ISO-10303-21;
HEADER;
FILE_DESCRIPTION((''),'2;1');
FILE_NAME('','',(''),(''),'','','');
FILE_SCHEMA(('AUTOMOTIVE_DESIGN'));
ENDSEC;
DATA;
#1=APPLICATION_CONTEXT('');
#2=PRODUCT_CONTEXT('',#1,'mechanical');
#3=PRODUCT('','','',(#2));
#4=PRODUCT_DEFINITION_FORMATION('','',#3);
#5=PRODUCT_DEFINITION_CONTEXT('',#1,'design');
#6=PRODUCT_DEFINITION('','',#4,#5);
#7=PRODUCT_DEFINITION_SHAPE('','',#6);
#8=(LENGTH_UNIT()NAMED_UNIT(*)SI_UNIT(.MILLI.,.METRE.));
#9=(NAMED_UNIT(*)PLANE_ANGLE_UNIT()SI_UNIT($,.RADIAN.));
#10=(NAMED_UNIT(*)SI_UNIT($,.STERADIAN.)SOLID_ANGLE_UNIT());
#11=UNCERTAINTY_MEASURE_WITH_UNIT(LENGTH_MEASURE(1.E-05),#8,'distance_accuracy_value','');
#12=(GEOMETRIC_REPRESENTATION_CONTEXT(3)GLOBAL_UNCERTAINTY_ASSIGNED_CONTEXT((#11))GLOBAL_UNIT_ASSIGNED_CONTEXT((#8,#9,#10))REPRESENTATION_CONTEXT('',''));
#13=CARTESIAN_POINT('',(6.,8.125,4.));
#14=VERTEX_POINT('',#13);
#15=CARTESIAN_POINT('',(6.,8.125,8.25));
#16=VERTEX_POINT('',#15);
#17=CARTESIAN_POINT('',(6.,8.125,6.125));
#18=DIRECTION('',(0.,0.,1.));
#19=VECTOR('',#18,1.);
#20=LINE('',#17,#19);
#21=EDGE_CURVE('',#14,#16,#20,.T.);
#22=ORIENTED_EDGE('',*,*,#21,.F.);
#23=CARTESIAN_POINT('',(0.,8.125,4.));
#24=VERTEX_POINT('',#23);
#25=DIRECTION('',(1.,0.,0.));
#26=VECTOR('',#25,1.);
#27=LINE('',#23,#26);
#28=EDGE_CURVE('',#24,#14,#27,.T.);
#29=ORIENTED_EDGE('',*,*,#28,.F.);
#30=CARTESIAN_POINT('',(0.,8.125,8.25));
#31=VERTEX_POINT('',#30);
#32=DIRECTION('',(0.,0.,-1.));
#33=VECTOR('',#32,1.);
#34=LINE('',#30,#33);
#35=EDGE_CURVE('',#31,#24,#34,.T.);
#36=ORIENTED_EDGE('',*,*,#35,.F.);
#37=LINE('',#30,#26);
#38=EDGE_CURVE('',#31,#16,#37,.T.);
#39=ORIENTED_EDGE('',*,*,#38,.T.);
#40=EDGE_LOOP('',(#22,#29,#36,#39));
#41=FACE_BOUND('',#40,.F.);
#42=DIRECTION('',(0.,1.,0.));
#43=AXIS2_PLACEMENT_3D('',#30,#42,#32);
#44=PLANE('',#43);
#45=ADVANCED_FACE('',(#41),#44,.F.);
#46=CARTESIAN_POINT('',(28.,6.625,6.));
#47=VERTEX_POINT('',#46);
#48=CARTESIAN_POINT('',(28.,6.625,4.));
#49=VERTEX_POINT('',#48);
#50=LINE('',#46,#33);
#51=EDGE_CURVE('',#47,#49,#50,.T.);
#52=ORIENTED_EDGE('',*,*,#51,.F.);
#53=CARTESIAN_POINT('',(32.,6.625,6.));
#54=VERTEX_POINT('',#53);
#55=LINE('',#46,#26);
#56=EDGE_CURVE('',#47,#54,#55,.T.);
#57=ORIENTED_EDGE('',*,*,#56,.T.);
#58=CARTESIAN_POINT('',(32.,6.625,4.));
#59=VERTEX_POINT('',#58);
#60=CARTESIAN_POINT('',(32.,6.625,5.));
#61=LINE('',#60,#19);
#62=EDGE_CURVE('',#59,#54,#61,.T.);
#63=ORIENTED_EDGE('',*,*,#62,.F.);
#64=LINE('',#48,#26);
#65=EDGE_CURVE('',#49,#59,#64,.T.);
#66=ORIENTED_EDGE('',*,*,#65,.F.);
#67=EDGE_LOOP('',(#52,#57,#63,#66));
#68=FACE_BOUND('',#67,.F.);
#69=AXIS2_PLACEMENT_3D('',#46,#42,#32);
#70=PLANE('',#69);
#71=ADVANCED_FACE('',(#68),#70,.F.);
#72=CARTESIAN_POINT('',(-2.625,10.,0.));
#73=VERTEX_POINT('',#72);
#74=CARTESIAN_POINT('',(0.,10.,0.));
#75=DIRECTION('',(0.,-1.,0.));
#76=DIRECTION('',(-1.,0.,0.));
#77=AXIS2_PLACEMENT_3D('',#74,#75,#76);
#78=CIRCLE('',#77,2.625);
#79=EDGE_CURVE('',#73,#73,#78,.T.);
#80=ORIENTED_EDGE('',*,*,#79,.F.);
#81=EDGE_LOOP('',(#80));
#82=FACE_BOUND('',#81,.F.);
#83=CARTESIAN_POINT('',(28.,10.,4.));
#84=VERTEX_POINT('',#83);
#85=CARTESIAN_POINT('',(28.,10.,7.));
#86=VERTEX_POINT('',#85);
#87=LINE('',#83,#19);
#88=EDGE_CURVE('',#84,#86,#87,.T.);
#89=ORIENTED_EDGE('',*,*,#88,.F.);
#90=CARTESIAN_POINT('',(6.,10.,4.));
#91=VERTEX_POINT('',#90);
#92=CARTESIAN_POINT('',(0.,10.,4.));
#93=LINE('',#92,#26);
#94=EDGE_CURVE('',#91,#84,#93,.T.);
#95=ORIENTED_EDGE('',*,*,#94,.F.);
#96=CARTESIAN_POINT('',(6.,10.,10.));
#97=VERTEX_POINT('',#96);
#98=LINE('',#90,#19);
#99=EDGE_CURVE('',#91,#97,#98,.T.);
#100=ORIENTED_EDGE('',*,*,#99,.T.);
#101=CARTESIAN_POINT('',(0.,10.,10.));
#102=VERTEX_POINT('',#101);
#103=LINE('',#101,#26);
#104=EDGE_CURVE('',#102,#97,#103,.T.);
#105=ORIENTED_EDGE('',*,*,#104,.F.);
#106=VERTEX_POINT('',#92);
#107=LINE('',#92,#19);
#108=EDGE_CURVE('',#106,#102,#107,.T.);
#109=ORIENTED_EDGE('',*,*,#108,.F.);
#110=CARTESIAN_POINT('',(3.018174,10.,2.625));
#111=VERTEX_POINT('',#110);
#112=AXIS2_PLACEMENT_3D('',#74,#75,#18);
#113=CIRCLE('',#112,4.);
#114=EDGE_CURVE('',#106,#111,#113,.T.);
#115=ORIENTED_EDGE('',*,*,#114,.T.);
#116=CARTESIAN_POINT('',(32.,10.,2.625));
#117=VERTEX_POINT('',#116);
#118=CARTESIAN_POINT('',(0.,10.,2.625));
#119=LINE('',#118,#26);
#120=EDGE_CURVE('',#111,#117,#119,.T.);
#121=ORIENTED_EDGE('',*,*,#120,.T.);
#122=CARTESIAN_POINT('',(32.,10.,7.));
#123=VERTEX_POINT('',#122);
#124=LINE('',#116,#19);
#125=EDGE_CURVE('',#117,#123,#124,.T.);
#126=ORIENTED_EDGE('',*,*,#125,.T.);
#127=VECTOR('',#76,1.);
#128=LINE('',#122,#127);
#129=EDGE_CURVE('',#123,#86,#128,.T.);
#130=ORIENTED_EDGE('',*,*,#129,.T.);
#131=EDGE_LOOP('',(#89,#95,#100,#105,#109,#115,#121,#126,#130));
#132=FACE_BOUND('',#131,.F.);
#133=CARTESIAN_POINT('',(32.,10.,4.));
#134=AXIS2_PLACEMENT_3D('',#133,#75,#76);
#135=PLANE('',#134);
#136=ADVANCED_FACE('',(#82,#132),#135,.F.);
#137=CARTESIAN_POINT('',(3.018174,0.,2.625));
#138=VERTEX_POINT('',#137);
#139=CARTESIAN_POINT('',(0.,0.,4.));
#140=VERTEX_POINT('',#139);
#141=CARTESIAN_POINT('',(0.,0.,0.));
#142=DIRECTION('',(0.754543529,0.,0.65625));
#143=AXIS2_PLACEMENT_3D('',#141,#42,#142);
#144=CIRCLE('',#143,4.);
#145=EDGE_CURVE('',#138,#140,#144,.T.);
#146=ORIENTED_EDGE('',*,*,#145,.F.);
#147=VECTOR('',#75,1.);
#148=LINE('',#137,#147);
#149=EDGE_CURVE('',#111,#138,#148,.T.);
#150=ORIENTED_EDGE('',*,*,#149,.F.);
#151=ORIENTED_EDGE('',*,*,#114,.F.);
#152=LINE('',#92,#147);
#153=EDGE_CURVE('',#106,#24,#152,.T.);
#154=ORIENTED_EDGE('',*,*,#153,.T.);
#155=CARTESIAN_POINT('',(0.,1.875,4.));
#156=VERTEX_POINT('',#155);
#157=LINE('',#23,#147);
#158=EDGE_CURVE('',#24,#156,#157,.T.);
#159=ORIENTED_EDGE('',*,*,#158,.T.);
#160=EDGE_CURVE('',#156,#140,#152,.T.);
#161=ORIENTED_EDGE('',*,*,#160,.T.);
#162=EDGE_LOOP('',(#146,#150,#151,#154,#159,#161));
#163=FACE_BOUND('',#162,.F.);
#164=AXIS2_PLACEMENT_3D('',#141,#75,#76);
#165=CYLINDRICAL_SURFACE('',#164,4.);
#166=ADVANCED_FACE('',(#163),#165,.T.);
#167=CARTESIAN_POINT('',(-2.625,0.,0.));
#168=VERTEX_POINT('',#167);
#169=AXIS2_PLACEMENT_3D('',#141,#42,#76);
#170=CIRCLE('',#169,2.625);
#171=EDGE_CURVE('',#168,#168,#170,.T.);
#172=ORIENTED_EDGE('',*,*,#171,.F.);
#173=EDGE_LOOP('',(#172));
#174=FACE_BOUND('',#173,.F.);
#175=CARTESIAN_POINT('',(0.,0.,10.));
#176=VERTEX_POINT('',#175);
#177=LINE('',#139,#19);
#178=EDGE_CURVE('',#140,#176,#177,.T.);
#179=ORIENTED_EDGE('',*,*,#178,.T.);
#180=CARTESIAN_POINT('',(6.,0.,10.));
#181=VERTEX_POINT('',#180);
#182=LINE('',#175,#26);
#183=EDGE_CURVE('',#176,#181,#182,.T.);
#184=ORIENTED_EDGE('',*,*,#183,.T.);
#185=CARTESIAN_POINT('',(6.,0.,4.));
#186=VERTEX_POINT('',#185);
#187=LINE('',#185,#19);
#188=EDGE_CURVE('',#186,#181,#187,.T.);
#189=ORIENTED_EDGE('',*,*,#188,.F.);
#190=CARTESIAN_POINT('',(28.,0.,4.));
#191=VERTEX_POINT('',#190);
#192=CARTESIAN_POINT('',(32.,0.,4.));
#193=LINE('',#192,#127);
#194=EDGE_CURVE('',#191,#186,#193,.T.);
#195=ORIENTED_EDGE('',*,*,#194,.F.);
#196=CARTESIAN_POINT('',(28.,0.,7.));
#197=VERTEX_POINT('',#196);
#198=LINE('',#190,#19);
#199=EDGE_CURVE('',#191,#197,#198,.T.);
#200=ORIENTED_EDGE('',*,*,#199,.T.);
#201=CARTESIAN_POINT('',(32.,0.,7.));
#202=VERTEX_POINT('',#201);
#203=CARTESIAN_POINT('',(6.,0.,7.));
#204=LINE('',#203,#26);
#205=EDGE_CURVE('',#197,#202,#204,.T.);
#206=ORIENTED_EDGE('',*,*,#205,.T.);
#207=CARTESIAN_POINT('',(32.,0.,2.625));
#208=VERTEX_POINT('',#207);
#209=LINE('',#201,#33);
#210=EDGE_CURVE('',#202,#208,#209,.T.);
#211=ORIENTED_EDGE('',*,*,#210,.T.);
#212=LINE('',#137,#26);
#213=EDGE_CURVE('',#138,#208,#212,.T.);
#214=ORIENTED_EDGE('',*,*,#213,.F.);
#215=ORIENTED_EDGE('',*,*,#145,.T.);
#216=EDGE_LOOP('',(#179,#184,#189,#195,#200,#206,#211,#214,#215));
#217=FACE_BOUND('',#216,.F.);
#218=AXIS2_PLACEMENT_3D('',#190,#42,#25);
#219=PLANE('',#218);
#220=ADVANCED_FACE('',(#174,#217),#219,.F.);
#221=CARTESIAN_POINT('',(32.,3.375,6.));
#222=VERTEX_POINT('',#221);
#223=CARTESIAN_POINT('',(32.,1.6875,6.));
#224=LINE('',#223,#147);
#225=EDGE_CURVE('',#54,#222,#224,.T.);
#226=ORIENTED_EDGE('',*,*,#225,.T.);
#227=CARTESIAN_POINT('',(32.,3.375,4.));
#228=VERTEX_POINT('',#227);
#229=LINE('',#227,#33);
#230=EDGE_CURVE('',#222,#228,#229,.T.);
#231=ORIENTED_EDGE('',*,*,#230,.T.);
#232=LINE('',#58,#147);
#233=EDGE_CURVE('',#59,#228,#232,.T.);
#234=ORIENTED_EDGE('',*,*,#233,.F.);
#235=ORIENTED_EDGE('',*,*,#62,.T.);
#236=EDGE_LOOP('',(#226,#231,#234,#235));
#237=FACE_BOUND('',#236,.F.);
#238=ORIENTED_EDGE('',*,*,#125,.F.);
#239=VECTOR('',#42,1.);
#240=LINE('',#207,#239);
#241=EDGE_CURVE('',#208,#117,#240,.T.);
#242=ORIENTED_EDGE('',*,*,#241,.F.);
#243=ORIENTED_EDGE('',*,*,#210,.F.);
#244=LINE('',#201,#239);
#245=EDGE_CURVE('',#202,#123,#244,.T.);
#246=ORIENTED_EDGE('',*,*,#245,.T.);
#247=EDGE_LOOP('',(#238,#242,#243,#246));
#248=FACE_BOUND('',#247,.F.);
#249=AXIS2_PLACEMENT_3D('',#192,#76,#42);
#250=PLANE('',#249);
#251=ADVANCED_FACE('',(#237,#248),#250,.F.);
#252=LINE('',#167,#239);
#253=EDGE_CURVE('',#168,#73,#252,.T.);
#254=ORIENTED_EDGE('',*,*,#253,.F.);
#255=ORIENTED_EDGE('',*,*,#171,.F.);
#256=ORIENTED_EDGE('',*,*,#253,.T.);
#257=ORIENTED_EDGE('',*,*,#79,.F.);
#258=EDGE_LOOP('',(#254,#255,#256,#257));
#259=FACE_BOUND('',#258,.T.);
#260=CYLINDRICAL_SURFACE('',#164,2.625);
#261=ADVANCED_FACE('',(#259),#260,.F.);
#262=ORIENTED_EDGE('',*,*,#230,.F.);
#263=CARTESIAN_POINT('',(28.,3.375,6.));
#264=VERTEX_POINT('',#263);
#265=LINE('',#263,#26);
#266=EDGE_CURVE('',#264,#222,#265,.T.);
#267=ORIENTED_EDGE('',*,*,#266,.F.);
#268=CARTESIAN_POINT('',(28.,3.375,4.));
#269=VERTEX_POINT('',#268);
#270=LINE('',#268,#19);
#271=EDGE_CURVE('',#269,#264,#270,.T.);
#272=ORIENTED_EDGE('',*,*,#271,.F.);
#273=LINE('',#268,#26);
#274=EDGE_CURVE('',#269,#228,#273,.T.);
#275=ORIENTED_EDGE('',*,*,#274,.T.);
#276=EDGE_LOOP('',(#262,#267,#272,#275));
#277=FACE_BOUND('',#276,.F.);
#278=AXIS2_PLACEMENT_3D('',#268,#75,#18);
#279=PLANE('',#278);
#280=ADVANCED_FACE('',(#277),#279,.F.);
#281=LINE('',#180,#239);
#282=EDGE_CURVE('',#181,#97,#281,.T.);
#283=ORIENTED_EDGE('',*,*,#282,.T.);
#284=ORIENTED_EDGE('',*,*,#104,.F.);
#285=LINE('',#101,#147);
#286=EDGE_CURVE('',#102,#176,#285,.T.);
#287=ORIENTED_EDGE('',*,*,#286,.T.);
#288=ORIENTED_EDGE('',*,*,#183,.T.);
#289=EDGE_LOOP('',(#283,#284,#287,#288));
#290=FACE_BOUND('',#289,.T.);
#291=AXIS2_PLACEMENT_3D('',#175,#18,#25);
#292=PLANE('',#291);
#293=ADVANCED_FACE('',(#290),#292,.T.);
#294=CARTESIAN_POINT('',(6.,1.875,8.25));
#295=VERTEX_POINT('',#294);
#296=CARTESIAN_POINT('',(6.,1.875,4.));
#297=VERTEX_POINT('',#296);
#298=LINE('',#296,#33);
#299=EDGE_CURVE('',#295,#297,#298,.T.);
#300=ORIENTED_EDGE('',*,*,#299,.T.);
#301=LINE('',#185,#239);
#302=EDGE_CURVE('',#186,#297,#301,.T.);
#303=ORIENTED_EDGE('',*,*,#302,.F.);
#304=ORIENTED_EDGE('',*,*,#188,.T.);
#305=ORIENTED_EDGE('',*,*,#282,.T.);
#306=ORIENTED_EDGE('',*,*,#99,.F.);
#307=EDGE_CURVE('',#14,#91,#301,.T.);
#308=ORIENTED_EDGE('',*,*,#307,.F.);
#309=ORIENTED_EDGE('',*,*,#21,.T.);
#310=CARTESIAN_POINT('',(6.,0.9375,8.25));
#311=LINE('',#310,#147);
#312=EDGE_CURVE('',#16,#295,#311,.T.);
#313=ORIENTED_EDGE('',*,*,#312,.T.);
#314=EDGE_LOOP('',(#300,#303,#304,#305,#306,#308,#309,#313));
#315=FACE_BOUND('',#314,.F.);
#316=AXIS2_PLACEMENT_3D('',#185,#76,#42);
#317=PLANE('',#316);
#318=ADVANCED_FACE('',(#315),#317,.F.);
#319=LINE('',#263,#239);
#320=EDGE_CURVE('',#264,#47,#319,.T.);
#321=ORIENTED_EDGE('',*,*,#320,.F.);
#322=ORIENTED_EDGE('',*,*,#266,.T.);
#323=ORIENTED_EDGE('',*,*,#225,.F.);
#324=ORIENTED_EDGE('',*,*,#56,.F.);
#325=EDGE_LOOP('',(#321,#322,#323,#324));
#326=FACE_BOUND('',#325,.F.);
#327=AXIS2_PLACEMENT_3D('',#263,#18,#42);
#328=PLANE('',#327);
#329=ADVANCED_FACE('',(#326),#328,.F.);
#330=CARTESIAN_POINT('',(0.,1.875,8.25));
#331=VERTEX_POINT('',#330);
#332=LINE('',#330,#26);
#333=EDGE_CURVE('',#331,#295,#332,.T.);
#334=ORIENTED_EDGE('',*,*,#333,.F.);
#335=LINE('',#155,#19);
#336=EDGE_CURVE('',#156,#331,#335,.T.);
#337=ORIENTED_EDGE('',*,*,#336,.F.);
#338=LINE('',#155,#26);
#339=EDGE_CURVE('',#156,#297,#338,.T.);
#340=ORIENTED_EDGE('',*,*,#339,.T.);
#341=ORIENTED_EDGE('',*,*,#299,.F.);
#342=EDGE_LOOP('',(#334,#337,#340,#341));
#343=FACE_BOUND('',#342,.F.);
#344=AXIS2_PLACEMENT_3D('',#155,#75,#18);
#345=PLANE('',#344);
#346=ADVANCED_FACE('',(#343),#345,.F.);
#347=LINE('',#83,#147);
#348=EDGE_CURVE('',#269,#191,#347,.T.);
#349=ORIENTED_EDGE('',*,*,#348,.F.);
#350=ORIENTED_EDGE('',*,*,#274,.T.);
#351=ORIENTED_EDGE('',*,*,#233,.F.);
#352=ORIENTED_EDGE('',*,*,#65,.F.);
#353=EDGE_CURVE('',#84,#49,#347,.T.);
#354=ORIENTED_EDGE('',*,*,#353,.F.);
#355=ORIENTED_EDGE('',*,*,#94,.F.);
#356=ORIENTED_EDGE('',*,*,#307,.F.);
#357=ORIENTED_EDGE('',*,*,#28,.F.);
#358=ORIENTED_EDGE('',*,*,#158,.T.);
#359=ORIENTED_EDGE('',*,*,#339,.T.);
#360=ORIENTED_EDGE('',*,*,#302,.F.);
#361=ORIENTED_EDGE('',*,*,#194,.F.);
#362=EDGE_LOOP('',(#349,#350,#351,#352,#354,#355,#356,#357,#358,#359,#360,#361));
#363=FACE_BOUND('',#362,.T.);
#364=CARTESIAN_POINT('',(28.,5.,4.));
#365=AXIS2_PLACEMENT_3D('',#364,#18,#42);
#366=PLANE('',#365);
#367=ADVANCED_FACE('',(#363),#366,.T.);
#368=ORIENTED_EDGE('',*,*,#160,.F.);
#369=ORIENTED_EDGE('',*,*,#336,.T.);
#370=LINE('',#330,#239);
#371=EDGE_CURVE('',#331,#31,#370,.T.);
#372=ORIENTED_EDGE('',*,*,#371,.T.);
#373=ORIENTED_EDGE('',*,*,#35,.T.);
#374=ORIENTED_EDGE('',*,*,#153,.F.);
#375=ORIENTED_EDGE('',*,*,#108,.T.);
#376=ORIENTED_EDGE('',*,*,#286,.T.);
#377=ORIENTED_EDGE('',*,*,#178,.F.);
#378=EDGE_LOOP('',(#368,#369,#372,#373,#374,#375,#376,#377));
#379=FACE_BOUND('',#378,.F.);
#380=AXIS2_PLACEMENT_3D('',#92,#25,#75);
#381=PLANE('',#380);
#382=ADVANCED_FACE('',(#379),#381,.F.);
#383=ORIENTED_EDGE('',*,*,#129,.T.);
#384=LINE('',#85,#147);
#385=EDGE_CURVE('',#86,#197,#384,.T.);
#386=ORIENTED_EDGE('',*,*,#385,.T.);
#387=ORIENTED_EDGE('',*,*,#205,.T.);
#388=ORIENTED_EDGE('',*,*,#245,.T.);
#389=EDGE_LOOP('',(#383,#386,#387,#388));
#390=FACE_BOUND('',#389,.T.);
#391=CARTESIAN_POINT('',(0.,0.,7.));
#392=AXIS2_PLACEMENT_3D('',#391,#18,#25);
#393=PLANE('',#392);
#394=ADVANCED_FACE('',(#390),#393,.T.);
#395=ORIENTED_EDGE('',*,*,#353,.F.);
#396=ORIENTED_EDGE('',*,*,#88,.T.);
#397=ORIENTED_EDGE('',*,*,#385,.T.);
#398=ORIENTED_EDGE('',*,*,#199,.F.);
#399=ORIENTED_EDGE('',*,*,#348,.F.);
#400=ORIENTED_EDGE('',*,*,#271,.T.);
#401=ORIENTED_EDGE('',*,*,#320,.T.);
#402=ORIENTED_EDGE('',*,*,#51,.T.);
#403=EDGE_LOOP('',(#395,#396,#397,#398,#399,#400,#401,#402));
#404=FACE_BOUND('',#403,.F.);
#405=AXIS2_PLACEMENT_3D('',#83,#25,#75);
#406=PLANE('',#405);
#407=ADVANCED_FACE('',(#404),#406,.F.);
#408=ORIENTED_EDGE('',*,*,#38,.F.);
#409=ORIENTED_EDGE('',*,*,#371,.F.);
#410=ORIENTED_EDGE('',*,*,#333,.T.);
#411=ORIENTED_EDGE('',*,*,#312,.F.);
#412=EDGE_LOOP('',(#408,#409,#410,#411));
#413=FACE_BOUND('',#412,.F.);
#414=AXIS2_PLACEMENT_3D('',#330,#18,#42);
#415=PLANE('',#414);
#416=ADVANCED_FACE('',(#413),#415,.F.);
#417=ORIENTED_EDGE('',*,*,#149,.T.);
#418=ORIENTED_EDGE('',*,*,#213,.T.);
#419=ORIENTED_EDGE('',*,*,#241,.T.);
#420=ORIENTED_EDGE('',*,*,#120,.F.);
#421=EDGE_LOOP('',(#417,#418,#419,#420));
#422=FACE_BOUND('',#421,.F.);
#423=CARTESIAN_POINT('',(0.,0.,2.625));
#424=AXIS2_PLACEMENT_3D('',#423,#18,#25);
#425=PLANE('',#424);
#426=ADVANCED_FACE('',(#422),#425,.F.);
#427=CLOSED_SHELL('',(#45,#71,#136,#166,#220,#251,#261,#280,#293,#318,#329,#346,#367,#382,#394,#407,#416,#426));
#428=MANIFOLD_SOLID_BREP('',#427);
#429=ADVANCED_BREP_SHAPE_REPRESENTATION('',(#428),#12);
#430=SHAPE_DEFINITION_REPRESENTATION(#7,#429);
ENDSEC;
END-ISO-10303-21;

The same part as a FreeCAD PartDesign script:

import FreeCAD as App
import Part
import Sketcher
from FreeCAD import Vector
Q = App.Units.Quantity


def add_polygon(sketch, points):
    """Adds a closed chain of lines whose ends are joined by coincident constraints."""
    first, n = sketch.GeometryCount, len(points)
    for a, b in zip(points, points[1:] + points[:1]):
        sketch.addGeometry(Part.LineSegment(App.Vector(*a, 0), App.Vector(*b, 0)), False)
    for i in range(n):
        sketch.addConstraint(Sketcher.Constraint("Coincident", first + i, 2, first + (i + 1) % n, 1))

doc = App.newDocument("Part")
body = doc.addObject("PartDesign::Body", "Body")

# Sketch on XZ plane
sketch1 = doc.addObject("Sketcher::SketchObject", "Sketch")
body.addObject(sketch1)
sketch1.AttachmentSupport = (doc.XZ_Plane, [""])
sketch1.MapMode = "FlatFace"
sketch1.addGeometry([
    Part.Circle(Vector(0, 0, 0), Vector(0, 0, 1), 4),
    Part.Circle(Vector(0, 0, 0), Vector(0, 0, 1), 2.6),
], False)
sketch1.addConstraint([
    Sketcher.Constraint("Coincident", 0, 3, -1, 1),
    Sketcher.Constraint("Coincident", 1, 3, -1, 1),
    Sketcher.Constraint("Diameter", 0, Q("8 mm")),
    Sketcher.Constraint("Diameter", 1, Q("5.25 mm")),
])
pad1 = doc.addObject("PartDesign::Pad", "Pad")
body.addObject(pad1)
pad1.Profile = sketch1
pad1.Length = 10
pad1.Reversed = True

# Sketch on XY plane
sketch2 = doc.addObject("Sketcher::SketchObject", "Sketch001")
body.addObject(sketch2)
sketch2.AttachmentSupport = (doc.XY_Plane, [""])
sketch2.MapMode = "FlatFace"
sketch2.AttachmentOffset = App.Placement(Vector(0, 0, 4), App.Rotation())
add_polygon(sketch2, [(32, 10), (0, 10), (0, 0), (32, 0)])  # lines 0-3
sketch2.addConstraint([
    Sketcher.Constraint("Horizontal", 0),
    Sketcher.Constraint("Vertical", 1),
    Sketcher.Constraint("Horizontal", 2),
    Sketcher.Constraint("Vertical", 3),
    Sketcher.Constraint("Coincident", 1, 2, -1, 1),
    Sketcher.Constraint("DistanceX", 0, 2, 0, 1, Q("32 mm")),
    Sketcher.Constraint("DistanceY", 1, 2, 1, 1, Q("10 mm")),
])
pad2 = doc.addObject("PartDesign::Pad", "Pad001")
body.addObject(pad2)
pad2.Profile = sketch2
pad2.Length = 1.375
pad2.Reversed = True

# Sketch on XY plane
sketch3 = doc.addObject("Sketcher::SketchObject", "Sketch002")
body.addObject(sketch3)
sketch3.AttachmentSupport = (doc.XY_Plane, [""])
sketch3.MapMode = "FlatFace"
sketch3.AttachmentOffset = App.Placement(Vector(0, 0, 4), App.Rotation())
add_polygon(sketch3, [(6, 10), (0, 10), (0, 0), (6, 0)])  # lines 0-3
sketch3.addConstraint([
    Sketcher.Constraint("Horizontal", 0),
    Sketcher.Constraint("Vertical", 1),
    Sketcher.Constraint("Horizontal", 2),
    Sketcher.Constraint("Vertical", 3),
    Sketcher.Constraint("Coincident", 1, 2, -1, 1),
    Sketcher.Constraint("DistanceX", 0, 2, 0, 1, Q("6 mm")),
    Sketcher.Constraint("DistanceY", 1, 2, 1, 1, Q("10 mm")),
])
pad3 = doc.addObject("PartDesign::Pad", "Pad002")
body.addObject(pad3)
pad3.Profile = sketch3
pad3.Length = 6

# Sketch on YZ plane
sketch4 = doc.addObject("Sketcher::SketchObject", "Sketch003")
body.addObject(sketch4)
sketch4.AttachmentSupport = (doc.YZ_Plane, [""])
sketch4.MapMode = "FlatFace"
add_polygon(sketch4, [(8.1, 4), (1.9, 4), (1.9, 8.2), (8.1, 8.2)])  # lines 0-3
sketch4.addConstraint([
    Sketcher.Constraint("Horizontal", 0),
    Sketcher.Constraint("Vertical", 1),
    Sketcher.Constraint("Horizontal", 2),
    Sketcher.Constraint("Vertical", 3),
    Sketcher.Constraint("DistanceY", 1, 1, 1, 2, Q("4.25 mm")),
    Sketcher.Constraint("DistanceY", -1, 1, 0, 2, Q("4 mm")),
    Sketcher.Constraint("DistanceX", 0, 2, 0, 1, Q("6.25 mm")),
    Sketcher.Constraint("DistanceX", -1, 1, 0, 2, Q("1.875 mm")),
])
pocket1 = doc.addObject("PartDesign::Pocket", "Pocket")
body.addObject(pocket1)
pocket1.Profile = sketch4
pocket1.Type = "UpToFirst"
pocket1.Reversed = True

# Sketch on XY plane
sketch5 = doc.addObject("Sketcher::SketchObject", "Sketch004")
body.addObject(sketch5)
sketch5.AttachmentSupport = (doc.XY_Plane, [""])
sketch5.MapMode = "FlatFace"
sketch5.AttachmentOffset = App.Placement(Vector(0, 0, 4), App.Rotation())
add_polygon(sketch5, [(32, 0), (32, 10), (28, 10), (28, 0)])  # lines 0-3
sketch5.addConstraint([
    Sketcher.Constraint("Vertical", 0),
    Sketcher.Constraint("Horizontal", 1),
    Sketcher.Constraint("Vertical", 2),
    Sketcher.Constraint("Horizontal", 3),
    Sketcher.Constraint("PointOnObject", 2, 2, -1),
    Sketcher.Constraint("DistanceX", 1, 2, 1, 1, Q("4 mm")),
    Sketcher.Constraint("DistanceY", 0, 1, 0, 2, Q("10 mm")),
    Sketcher.Constraint("DistanceX", -1, 1, 0, 2, Q("32 mm")),
])
pad4 = doc.addObject("PartDesign::Pad", "Pad003")
body.addObject(pad4)
pad4.Profile = sketch5
pad4.Length = 3

# Sketch on YZ plane
sketch6 = doc.addObject("Sketcher::SketchObject", "Sketch005")
body.addObject(sketch6)
sketch6.AttachmentSupport = (doc.YZ_Plane, [""])
sketch6.MapMode = "FlatFace"
sketch6.AttachmentOffset = App.Placement(Vector(0, 0, 28), App.Rotation())
add_polygon(sketch6, [(6.6, 4), (3.4, 4), (3.4, 6), (6.6, 6)])  # lines 0-3
sketch6.addConstraint([
    Sketcher.Constraint("Horizontal", 0),
    Sketcher.Constraint("Vertical", 1),
    Sketcher.Constraint("Horizontal", 2),
    Sketcher.Constraint("Vertical", 3),
    Sketcher.Constraint("DistanceY", 1, 1, 1, 2, Q("2 mm")),
    Sketcher.Constraint("DistanceY", -1, 1, 0, 2, Q("4 mm")),
    Sketcher.Constraint("DistanceX", 0, 2, 0, 1, Q("3.25 mm")),
    Sketcher.Constraint("DistanceX", -1, 1, 0, 2, Q("3.375 mm")),
])
pocket2 = doc.addObject("PartDesign::Pocket", "Pocket001")
body.addObject(pocket2)
pocket2.Profile = sketch6
pocket2.Type = "UpToFirst"
pocket2.Reversed = True

doc.recompute()
